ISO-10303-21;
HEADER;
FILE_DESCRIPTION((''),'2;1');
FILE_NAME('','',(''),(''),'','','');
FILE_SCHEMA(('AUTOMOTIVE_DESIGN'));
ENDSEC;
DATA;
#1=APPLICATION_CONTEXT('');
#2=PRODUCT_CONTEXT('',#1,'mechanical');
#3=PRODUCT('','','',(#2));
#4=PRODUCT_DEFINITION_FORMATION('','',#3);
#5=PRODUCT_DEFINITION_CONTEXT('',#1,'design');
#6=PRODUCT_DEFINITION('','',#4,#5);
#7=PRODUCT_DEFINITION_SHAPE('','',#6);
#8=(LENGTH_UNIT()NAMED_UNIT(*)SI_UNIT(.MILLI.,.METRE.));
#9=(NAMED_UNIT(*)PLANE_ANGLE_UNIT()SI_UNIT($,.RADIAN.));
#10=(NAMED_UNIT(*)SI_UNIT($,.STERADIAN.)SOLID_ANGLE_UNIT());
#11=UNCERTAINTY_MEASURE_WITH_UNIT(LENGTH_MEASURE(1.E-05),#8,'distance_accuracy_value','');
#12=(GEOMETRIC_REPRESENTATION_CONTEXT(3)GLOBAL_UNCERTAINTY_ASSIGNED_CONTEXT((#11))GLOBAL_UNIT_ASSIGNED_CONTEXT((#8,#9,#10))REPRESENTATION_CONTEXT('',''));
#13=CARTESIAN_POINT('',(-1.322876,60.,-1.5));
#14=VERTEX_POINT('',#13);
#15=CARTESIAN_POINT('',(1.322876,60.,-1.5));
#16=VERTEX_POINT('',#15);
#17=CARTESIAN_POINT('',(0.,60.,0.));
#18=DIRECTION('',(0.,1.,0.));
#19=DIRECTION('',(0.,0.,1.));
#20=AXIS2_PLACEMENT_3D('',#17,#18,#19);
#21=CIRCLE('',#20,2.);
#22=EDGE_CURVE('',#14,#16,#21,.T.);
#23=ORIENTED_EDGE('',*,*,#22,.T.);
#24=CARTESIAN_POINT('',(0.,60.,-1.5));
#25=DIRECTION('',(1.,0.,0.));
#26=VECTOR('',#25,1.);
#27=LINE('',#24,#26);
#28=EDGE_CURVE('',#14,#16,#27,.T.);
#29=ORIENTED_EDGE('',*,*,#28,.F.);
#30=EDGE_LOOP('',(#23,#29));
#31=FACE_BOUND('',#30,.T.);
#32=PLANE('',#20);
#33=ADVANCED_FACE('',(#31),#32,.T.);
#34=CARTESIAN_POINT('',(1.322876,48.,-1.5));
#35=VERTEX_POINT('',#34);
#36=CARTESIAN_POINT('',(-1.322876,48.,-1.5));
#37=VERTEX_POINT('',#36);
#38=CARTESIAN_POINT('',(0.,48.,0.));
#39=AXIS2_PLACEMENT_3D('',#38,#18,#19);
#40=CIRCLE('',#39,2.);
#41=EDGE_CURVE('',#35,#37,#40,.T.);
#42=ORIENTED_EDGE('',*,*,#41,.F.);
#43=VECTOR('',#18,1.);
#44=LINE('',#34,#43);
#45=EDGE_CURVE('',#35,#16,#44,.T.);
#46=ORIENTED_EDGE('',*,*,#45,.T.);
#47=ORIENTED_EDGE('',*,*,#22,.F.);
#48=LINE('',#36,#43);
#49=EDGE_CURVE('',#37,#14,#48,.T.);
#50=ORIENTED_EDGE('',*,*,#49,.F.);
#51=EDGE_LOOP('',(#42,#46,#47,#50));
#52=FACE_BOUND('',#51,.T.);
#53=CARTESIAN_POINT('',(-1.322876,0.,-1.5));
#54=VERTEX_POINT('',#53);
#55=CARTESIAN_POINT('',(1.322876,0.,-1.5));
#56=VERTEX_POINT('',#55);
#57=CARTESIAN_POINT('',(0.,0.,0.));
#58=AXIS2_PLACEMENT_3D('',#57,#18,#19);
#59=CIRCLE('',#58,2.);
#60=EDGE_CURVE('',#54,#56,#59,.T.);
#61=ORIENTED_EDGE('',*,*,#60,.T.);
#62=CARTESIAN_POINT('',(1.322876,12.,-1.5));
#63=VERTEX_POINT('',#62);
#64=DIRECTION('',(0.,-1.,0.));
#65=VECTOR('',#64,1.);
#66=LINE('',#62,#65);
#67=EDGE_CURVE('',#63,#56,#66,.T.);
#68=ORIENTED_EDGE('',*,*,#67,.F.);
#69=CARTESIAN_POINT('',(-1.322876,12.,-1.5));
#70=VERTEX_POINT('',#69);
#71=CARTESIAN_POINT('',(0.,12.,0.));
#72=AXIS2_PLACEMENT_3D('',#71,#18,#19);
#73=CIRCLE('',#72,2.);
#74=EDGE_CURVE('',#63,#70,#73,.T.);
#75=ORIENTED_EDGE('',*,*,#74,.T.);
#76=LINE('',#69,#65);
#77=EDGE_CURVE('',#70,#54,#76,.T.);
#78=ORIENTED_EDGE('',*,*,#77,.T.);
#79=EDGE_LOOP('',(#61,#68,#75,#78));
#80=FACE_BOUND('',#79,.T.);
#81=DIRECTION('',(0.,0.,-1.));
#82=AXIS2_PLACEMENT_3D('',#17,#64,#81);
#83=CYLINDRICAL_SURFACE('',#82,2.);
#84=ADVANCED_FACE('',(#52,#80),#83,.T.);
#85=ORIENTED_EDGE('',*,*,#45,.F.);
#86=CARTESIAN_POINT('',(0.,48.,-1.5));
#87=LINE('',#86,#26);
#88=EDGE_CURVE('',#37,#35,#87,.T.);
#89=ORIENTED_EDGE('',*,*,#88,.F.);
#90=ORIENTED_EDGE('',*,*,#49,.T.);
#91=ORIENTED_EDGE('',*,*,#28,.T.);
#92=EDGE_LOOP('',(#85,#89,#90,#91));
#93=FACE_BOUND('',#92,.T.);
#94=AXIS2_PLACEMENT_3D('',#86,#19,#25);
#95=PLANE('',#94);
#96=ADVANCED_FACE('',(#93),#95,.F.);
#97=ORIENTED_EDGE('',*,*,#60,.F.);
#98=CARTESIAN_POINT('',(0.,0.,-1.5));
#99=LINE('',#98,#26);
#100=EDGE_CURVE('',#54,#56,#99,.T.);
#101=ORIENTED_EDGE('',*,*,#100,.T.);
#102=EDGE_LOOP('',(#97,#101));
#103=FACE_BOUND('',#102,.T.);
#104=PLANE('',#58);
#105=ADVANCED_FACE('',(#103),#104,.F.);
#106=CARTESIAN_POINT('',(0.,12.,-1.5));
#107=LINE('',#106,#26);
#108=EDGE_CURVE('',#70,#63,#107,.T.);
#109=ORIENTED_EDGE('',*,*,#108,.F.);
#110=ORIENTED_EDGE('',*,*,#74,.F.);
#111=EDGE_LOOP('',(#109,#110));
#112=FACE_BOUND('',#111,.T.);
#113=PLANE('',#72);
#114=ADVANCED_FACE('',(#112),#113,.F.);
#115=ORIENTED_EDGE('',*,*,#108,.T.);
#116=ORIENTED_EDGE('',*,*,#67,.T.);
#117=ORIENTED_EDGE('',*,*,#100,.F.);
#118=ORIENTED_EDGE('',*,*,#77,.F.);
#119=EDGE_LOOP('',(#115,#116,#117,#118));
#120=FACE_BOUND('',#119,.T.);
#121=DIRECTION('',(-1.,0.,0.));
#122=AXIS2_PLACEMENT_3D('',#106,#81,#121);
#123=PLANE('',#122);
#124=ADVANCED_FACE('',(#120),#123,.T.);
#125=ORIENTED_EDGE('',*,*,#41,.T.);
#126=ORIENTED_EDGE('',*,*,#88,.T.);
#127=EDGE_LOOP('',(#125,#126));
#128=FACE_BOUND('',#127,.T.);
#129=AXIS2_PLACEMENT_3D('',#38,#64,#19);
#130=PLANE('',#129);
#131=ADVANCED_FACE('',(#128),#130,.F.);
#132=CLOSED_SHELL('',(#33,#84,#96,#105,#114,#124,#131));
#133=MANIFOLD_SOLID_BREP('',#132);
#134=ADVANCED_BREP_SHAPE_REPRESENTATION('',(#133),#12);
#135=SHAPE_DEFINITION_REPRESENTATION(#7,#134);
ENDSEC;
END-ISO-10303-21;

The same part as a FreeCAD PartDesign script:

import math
import FreeCAD as App
import Part
import Sketcher
from FreeCAD import Vector
Q = App.Units.Quantity

doc = App.newDocument("Part")
params = doc.addObject("Spreadsheet::Sheet", "Params")
for row, (alias, value) in enumerate([
    ("sketch1_radius", "2 mm"),
    ("pad1_length", "60 mm"),
    ("pocket1_length", "12 mm"),
], start=1):
    params.set(f"A{row}", alias)
    params.set(f"B{row}", "=" + value)
    params.setAlias(f"B{row}", alias)

body = doc.addObject("PartDesign::Body", "Body")

sketch1 = body.newObject("Sketcher::SketchObject", "Sketch")
sketch1.AttachmentSupport = (doc.getObject("XZ_Plane"), [""])
sketch1.MapMode = "FlatFace"
sketch1.addGeometry([
    Part.ArcOfCircle(Part.Circle(Vector(0, 0, 0), Vector(0, 0, 1), 2), math.radians(-131), math.radians(-49)),
    Part.ArcOfCircle(Part.Circle(Vector(0, 0, 0), Vector(0, 0, 1), 2), math.radians(0), math.radians(229)),
    Part.ArcOfCircle(Part.Circle(Vector(0, 0, 0), Vector(0, 0, 1), 2), math.radians(-49), math.radians(0)),
], False)
sketch1.addConstraint([
    Sketcher.Constraint("Tangent", 0, 1, 1, 2),
    Sketcher.Constraint("Tangent", 1, 1, 2, 2),
    Sketcher.Constraint("Tangent", 2, 1, 0, 2),
    Sketcher.Constraint("Coincident", 0, 3, -1, 1),
    Sketcher.Constraint("PointOnObject", 1, 1, -1),
    Sketcher.Constraint("Horizontal", 0, 1, 2, 1),
    Sketcher.Constraint("Radius", 0, Q("2 mm")),
    Sketcher.Constraint("DistanceY", 0, 1, -1, 1, Q("1.5 mm")),
])
sketch1.setExpression("Constraints[6]", "Params.sketch1_radius")
pad1 = body.newObject("PartDesign::Pad", "Pad")
pad1.Profile = sketch1
pad1.setExpression("Length", "Params.pad1_length")
pad1.Reversed = True

sketch2 = body.newObject("Sketcher::SketchObject", "Sketch001")
sketch2.AttachmentSupport = (doc.getObject("XZ_Plane"), [""])
sketch2.MapMode = "FlatFace"
sketch2.addGeometry([
    Part.LineSegment(Vector(-21, -2, 0), Vector(21, -2, 0)),
    Part.LineSegment(Vector(21, -2, 0), Vector(21, -41, 0)),
    Part.LineSegment(Vector(21, -41, 0), Vector(-21, -41, 0)),
    Part.LineSegment(Vector(-21, -41, 0), Vector(-21, -2, 0)),
], False)
sketch2.addConstraint([
    Sketcher.Constraint("Coincident", 0, 2, 1, 1),
    Sketcher.Constraint("Coincident", 1, 2, 2, 1),
    Sketcher.Constraint("Coincident", 2, 2, 3, 1),
    Sketcher.Constraint("Coincident", 3, 2, 0, 1),
    Sketcher.Constraint("Horizontal", 0),
    Sketcher.Constraint("Vertical", 1),
    Sketcher.Constraint("Horizontal", 2),
    Sketcher.Constraint("Vertical", 3),
    Sketcher.Constraint("DistanceY", 0, 2, -1, 1, Q("1.5 mm")),
    Sketcher.Constraint("DistanceX", 0, 1, 0, 2, Q("41.95026 mm")),
    Sketcher.Constraint("DistanceY", 1, 2, 1, 1, Q("39.304508 mm")),
    Sketcher.Constraint("DistanceX", -1, 1, 0, 2, Q("20.97513 mm")),
])
pocket1 = body.newObject("PartDesign::Pocket", "Pocket")
pocket1.Profile = sketch2
pocket1.setExpression("Length", "Params.pocket1_length")
doc.recompute()

datumplane = body.newObject("PartDesign::Plane", "DatumPlane")
datumplane.AttachmentSupport = (doc.getObject("XZ_Plane"), [""])
datumplane.MapMode = "FlatFace"
datumplane.AttachmentOffset = App.Placement(Vector(0, 0, -30), App.Rotation())
mirrored = body.newObject("PartDesign::Mirrored", "Mirrored")
mirrored.Originals = [pocket1]
mirrored.MirrorPlane = (datumplane, [""])
body.Tip = mirrored

doc.recompute()
